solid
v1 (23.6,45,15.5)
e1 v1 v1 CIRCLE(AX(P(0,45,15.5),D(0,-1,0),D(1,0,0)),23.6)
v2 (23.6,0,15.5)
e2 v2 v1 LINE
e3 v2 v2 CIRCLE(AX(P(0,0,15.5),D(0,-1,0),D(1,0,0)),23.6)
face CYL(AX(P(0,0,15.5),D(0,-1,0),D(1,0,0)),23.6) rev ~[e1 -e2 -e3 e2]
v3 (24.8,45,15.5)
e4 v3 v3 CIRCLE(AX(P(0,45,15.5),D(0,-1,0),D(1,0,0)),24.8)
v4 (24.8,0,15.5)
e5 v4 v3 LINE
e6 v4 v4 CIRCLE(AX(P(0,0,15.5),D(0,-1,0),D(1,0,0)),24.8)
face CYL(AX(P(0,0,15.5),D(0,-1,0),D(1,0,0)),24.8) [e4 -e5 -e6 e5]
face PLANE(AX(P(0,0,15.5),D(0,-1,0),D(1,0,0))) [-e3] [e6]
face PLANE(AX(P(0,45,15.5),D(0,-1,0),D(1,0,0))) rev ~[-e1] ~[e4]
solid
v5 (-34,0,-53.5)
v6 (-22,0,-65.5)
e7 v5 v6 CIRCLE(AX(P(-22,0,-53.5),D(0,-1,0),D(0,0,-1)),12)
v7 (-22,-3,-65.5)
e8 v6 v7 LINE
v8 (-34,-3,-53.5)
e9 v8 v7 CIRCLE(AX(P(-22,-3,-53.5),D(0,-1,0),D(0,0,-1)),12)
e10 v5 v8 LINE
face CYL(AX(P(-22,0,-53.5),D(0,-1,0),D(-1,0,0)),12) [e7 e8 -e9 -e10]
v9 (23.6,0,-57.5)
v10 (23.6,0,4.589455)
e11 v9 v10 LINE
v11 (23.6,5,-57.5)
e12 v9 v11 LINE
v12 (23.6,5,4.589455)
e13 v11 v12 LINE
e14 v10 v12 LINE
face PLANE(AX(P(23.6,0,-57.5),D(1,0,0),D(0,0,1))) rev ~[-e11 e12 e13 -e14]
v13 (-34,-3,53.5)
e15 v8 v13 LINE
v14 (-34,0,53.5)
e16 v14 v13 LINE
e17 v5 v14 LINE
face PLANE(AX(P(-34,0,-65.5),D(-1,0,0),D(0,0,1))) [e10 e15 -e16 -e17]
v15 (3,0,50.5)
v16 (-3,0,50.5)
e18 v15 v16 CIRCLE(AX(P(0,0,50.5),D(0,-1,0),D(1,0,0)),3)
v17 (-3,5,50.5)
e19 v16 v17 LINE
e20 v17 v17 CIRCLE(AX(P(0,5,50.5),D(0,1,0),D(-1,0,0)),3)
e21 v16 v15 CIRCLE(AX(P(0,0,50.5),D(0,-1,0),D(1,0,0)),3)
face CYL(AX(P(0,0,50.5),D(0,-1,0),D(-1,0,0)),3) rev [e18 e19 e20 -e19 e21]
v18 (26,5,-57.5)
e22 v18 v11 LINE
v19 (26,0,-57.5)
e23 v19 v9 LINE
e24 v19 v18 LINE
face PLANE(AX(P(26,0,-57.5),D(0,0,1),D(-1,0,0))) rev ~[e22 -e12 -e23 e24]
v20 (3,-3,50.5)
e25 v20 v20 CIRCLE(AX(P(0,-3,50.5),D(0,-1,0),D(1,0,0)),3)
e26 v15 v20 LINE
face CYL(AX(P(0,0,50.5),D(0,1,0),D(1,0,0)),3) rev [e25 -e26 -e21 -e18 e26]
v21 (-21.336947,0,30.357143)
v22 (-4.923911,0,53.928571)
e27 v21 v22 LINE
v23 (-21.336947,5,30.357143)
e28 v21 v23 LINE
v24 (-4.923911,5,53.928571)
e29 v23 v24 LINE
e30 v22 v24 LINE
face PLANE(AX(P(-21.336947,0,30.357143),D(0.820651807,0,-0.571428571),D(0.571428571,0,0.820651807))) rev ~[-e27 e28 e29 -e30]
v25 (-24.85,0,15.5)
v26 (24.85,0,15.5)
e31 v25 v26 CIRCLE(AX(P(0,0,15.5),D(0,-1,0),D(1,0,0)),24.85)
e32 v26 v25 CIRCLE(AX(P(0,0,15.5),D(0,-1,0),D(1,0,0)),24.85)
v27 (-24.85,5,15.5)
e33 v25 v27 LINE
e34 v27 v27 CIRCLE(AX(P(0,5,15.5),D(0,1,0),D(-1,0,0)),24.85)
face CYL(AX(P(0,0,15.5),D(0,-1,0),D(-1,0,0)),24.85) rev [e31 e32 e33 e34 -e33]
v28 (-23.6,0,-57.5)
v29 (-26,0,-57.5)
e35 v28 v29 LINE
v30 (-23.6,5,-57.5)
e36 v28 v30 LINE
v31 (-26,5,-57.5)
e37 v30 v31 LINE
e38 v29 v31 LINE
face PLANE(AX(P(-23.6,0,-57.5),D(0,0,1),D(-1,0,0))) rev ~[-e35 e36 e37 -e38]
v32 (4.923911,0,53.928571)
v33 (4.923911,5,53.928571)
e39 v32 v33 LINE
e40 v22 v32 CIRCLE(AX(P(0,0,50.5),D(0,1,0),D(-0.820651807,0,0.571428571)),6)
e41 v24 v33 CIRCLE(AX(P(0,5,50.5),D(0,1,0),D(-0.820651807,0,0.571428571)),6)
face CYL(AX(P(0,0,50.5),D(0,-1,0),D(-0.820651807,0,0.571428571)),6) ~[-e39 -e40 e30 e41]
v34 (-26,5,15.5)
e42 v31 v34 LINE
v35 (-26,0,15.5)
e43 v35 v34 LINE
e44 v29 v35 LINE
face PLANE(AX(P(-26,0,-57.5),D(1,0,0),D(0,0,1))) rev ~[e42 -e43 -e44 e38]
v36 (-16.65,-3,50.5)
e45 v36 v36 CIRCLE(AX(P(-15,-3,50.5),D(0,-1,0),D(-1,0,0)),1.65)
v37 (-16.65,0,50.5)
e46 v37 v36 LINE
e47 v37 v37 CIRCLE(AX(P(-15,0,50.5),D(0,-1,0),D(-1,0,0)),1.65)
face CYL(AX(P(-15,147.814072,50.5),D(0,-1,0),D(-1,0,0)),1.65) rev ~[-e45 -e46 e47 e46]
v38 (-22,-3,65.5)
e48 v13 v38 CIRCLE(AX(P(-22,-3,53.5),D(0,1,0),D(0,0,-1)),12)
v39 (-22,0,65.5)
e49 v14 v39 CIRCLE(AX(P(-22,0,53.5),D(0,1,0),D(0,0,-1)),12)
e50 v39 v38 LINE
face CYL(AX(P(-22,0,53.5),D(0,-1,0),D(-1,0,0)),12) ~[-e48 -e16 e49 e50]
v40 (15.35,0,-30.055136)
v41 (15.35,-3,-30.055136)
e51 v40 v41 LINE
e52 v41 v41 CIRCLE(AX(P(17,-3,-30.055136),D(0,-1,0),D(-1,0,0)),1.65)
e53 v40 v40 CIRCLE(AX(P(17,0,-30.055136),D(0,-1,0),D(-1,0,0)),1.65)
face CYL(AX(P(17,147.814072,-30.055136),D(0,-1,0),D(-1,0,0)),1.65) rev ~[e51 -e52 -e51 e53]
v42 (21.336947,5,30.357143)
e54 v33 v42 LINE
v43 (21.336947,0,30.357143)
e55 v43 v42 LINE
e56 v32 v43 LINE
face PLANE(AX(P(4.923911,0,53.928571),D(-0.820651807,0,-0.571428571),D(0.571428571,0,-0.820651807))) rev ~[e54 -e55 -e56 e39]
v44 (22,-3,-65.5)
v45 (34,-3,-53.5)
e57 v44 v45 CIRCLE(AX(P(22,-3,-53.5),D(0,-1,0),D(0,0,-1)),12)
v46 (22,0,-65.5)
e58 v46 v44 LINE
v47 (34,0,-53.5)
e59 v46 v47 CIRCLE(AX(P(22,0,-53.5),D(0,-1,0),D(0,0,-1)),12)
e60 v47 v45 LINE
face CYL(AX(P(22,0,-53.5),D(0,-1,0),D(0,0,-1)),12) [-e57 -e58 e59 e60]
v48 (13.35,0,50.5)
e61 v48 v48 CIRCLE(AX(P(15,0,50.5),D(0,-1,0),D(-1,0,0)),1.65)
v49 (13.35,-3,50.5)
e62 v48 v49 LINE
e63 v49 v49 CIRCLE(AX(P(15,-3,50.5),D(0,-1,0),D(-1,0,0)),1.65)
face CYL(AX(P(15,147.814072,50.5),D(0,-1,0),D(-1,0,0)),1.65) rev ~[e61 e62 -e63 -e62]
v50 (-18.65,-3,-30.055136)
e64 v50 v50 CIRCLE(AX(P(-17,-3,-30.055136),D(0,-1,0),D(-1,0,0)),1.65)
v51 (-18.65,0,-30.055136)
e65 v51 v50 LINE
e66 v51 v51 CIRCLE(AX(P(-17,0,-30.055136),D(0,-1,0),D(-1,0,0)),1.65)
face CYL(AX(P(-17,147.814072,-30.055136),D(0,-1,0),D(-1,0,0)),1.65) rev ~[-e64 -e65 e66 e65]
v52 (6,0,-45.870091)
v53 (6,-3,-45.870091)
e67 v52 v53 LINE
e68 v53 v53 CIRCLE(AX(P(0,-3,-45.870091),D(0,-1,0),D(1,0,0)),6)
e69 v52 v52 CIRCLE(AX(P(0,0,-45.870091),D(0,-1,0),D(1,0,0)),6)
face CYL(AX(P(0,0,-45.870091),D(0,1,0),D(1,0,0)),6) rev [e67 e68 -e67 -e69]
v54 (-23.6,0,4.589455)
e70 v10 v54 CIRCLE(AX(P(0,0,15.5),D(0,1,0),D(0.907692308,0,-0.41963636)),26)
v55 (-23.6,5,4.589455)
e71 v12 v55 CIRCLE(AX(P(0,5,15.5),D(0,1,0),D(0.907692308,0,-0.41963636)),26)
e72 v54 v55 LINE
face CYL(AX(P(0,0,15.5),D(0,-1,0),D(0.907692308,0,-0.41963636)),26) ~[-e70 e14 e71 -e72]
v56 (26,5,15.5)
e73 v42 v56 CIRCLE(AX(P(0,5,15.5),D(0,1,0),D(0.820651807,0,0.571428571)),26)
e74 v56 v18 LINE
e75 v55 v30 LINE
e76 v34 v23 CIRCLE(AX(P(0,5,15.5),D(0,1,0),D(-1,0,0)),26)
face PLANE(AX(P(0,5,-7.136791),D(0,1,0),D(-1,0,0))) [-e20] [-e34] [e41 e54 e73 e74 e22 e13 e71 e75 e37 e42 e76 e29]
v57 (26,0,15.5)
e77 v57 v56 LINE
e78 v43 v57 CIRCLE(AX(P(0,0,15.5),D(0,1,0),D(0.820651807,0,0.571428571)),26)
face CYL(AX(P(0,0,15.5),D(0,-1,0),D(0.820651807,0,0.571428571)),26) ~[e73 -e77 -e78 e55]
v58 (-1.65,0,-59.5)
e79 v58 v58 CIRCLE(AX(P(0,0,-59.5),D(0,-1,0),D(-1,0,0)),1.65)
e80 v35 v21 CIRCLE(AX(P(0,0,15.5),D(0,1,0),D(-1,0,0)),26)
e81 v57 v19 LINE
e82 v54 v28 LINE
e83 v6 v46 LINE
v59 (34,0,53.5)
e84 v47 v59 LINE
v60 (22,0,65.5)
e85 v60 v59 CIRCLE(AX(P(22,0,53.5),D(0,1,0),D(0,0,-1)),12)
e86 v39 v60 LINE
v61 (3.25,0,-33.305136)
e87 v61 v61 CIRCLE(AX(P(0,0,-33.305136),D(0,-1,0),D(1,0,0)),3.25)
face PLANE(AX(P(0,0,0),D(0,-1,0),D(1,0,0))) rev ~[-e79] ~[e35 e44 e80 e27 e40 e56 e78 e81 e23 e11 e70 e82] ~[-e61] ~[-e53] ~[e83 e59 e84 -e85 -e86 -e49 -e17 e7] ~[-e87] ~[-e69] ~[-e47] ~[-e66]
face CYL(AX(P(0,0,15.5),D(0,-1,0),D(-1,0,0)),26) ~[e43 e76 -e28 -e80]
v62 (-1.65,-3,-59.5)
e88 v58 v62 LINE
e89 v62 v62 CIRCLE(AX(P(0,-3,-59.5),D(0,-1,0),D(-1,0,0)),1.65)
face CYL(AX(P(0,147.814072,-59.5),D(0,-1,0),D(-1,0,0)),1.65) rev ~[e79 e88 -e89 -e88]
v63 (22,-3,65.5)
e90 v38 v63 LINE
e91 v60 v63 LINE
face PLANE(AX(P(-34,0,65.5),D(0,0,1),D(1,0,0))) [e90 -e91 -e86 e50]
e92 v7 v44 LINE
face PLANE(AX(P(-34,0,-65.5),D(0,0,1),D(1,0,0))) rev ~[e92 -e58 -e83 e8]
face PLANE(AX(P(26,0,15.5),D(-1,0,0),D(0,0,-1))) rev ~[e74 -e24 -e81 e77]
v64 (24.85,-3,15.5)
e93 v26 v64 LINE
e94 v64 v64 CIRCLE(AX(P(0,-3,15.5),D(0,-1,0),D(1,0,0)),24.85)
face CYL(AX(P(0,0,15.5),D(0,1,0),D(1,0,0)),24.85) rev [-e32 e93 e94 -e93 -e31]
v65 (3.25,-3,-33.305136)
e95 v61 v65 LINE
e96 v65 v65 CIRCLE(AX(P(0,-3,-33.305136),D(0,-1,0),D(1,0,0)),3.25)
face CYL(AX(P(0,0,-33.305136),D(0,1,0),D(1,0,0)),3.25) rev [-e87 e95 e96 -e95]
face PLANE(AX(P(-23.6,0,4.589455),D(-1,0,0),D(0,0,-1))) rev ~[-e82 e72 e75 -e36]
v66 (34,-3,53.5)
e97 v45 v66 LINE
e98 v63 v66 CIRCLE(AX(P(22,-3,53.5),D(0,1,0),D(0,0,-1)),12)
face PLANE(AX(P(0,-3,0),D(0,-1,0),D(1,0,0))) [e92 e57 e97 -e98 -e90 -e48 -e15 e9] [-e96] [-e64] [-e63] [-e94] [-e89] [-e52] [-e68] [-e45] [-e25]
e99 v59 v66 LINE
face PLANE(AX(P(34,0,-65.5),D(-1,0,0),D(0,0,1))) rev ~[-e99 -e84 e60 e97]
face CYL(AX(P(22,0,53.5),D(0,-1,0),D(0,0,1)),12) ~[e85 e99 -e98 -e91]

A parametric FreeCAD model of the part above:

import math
import FreeCAD as App
import Part
import Sketcher
Q = App.Units.Quantity


def edges_at(feature, points):
    """Names of the edges that pass closest to the given points."""
    edges = feature.Shape.Edges
    near = lambda p: min(range(len(edges)), key=lambda i: edges[i].distToShape(Part.Vertex(*p))[0])
    return sorted({f"Edge{near(p) + 1}" for p in points})


def add_polygon(sketch, points):
    """Adds a closed chain of lines whose ends are joined by coincident constraints."""
    first, n = sketch.GeometryCount, len(points)
    for a, b in zip(points, points[1:] + points[:1]):
        sketch.addGeometry(Part.LineSegment(App.Vector(*a, 0), App.Vector(*b, 0)), False)
    for i in range(n):
        sketch.addConstraint(Sketcher.Constraint("Coincident", first + i, 2, first + (i + 1) % n, 1))

doc = App.newDocument("Part")
body = doc.addObject("PartDesign::Body", "Body")

sketch1 = body.newObject("Sketcher::SketchObject", "Sketch")
sketch1.AttachmentSupport = (doc.getObject("XZ_Plane"), [""])
sketch1.MapMode = "FlatFace"
add_polygon(sketch1, [(-34, 65.5), (-34, -65.5), (34, -65.5), (34, 65.5)])
sketch1.addGeometry(Part.Circle(App.Vector(0, -45.9, 0), App.Vector(0, 0, 1), 6), False)
sketch1.addGeometry(Part.Circle(App.Vector(0, -33.3, 0), App.Vector(0, 0, 1), 3.2), False)
sketch1.addGeometry(Part.Circle(App.Vector(0, 15.5, 0), App.Vector(0, 0, 1), 24.9), False)
sketch1.addGeometry(Part.Circle(App.Vector(0, 50.5, 0), App.Vector(0, 0, 1), 3), False)
sketch1.addConstraint([
    Sketcher.Constraint("Vertical", 0),
    Sketcher.Constraint("Horizontal", 1),
    Sketcher.Constraint("Vertical", 2),
    Sketcher.Constraint("Horizontal", 3),
    Sketcher.Constraint("Symmetric", 0, 2, 2, 2, -1, 1),
    Sketcher.Constraint("PointOnObject", 4, 3, -2),
    Sketcher.Constraint("PointOnObject", 5, 3, -2),
    Sketcher.Constraint("PointOnObject", 6, 3, -2),
    Sketcher.Constraint("PointOnObject", 7, 3, -2),
    Sketcher.Constraint("Diameter", 4, Q("12 mm")),
    Sketcher.Constraint("Diameter", 7, Q("6 mm")),
    Sketcher.Constraint("Diameter", 5, Q("6.5 mm")),
    Sketcher.Constraint("Diameter", 6, Q("49.7 mm")),
    Sketcher.Constraint("DistanceX", 1, 1, 1, 2, Q("68 mm")),
    Sketcher.Constraint("DistanceY", 0, 2, 0, 1, Q("131 mm")),
    Sketcher.Constraint("DistanceY", 6, 3, 7, 3, Q("35 mm")),
    Sketcher.Constraint("DistanceY", 0, 2, 6, 3, Q("81 mm")),
    Sketcher.Constraint("DistanceY", 4, 3, -1, 1, Q("45.870091 mm")),
    Sketcher.Constraint("DistanceY", 5, 3, -1, 1, Q("33.305136 mm")),
])
pad1 = body.newObject("PartDesign::Pad", "Pad")
pad1.Profile = sketch1
pad1.Length = 3

sketch2 = body.newObject("Sketcher::SketchObject", "Sketch001")
sketch2.AttachmentSupport = (doc.getObject("XZ_Plane"), [""])
sketch2.MapMode = "FlatFace"
sketch2.addGeometry([
    Part.LineSegment(App.Vector(23.6, -57.5, 0), App.Vector(23.6, 4.6, 0)),
    Part.ArcOfCircle(Part.Circle(App.Vector(0, 15.5, 0), App.Vector(0, 0, 1), 26), math.radians(-155), math.radians(-25)),
    Part.LineSegment(App.Vector(-23.6, 4.6, 0), App.Vector(-23.6, -57.5, 0)),
    Part.LineSegment(App.Vector(-23.6, -57.5, 0), App.Vector(-26, -57.5, 0)),
    Part.LineSegment(App.Vector(-26, -57.5, 0), App.Vector(-26, 15.5, 0)),
    Part.ArcOfCircle(Part.Circle(App.Vector(0, 15.5, 0), App.Vector(0, 0, 1), 26), math.radians(145), math.radians(180)),
    Part.LineSegment(App.Vector(-21.3, 30.4, 0), App.Vector(-4.9, 53.9, 0)),
    Part.ArcOfCircle(Part.Circle(App.Vector(0, 50.5, 0), App.Vector(0, 0, 1), 6), math.radians(35), math.radians(145)),
    Part.LineSegment(App.Vector(4.9, 53.9, 0), App.Vector(21.3, 30.4, 0)),
    Part.ArcOfCircle(Part.Circle(App.Vector(0, 15.5, 0), App.Vector(0, 0, 1), 26), math.radians(0), math.radians(35)),
    Part.LineSegment(App.Vector(26, 15.5, 0), App.Vector(26, -57.5, 0)),
    Part.LineSegment(App.Vector(26, -57.5, 0), App.Vector(23.6, -57.5, 0)),
    Part.Circle(App.Vector(0, 15.5, 0), App.Vector(0, 0, 1), 24.9),
    Part.Circle(App.Vector(0, 50.5, 0), App.Vector(0, 0, 1), 3),
], False)
sketch2.addConstraint([
    Sketcher.Constraint("Coincident", 0, 2, 1, 2),
    Sketcher.Constraint("Coincident", 1, 1, 2, 1),
    Sketcher.Constraint("Coincident", 2, 2, 3, 1),
    Sketcher.Constraint("Coincident", 3, 2, 4, 1),
    Sketcher.Constraint("Tangent", 4, 2, 5, 2),
    Sketcher.Constraint("Tangent", 5, 1, 6, 1),
    Sketcher.Constraint("Tangent", 6, 2, 7, 2),
    Sketcher.Constraint("Tangent", 7, 1, 8, 1),
    Sketcher.Constraint("Tangent", 8, 2, 9, 2),
    Sketcher.Constraint("Tangent", 9, 1, 10, 1),
    Sketcher.Constraint("Coincident", 10, 2, 11, 1),
    Sketcher.Constraint("Coincident", 11, 2, 0, 1),
    Sketcher.Constraint("Vertical", 0),
    Sketcher.Constraint("Vertical", 2),
    Sketcher.Constraint("Horizontal", 3),
    Sketcher.Constraint("Vertical", 4),
    Sketcher.Constraint("Vertical", 10),
    Sketcher.Constraint("Horizontal", 11),
    Sketcher.Constraint("Coincident", 5, 3, 1, 3),
    Sketcher.Constraint("Coincident", 9, 3, 1, 3),
    Sketcher.Constraint("Coincident", 12, 3, 1, 3),
    Sketcher.Constraint("Coincident", 13, 3, 7, 3),
    Sketcher.Constraint("Equal", 1, 5),
    Sketcher.Constraint("Equal", 5, 9),
    Sketcher.Constraint("Symmetric", 0, 2, 1, 1, -2),
    Sketcher.Constraint("PointOnObject", 7, 3, -2),
    Sketcher.Constraint("Horizontal", 3, 2, 10, 2),
    Sketcher.Constraint("Diameter", 13, Q("6 mm")),
    Sketcher.Constraint("Radius", 1, Q("26 mm")),
    Sketcher.Constraint("Radius", 7, Q("6 mm")),
    Sketcher.Constraint("Diameter", 12, Q("49.7 mm")),
    Sketcher.Constraint("DistanceY", 4, 1, 4, 2, Q("73 mm")),
    Sketcher.Constraint("DistanceX", 3, 2, 3, 1, Q("2.4 mm")),
    Sketcher.Constraint("DistanceY", 1, 3, 7, 3, Q("35 mm")),
    Sketcher.Constraint("DistanceY", -1, 1, 1, 3, Q("15.5 mm")),
])
pad2 = body.newObject("PartDesign::Pad", "Pad001")
pad2.Profile = sketch2
pad2.Length = 5
pad2.Reversed = True

sketch3 = body.newObject("Sketcher::SketchObject", "Sketch002")
sketch3.AttachmentSupport = (doc.getObject("XZ_Plane"), [""])
sketch3.MapMode = "FlatFace"
sketch3.addGeometry([
    Part.Circle(App.Vector(-15, 50.5, 0), App.Vector(0, 0, 1), 1.6),
    Part.Circle(App.Vector(15, 50.5, 0), App.Vector(0, 0, 1), 1.6),
    Part.Circle(App.Vector(-17, -30.1, 0), App.Vector(0, 0, 1), 1.6),
    Part.Circle(App.Vector(17, -30.1, 0), App.Vector(0, 0, 1), 1.6),
    Part.Circle(App.Vector(0, -59.5, 0), App.Vector(0, 0, 1), 1.6),
], False)
sketch3.addConstraint([
    Sketcher.Constraint("Equal", 0, 1),
    Sketcher.Constraint("Equal", 1, 2),
    Sketcher.Constraint("Equal", 2, 3),
    Sketcher.Constraint("Equal", 3, 4),
    Sketcher.Constraint("Symmetric", 0, 3, 1, 3, -2),
    Sketcher.Constraint("Symmetric", 2, 3, 3, 3, -2),
    Sketcher.Constraint("PointOnObject", 4, 3, -2),
    Sketcher.Constraint("Diameter", 0, Q("3.3 mm")),
    Sketcher.Constraint("DistanceX", 0, 3, -1, 1, Q("15 mm")),
    Sketcher.Constraint("DistanceX", 2, 3, -1, 1, Q("17 mm")),
    Sketcher.Constraint("DistanceY", 4, 3, 0, 3, Q("110 mm")),
    Sketcher.Constraint("DistanceY", -1, 1, 0, 3, Q("50.5 mm")),
    Sketcher.Constraint("DistanceY", 2, 3, -1, 1, Q("30.055136 mm")),
])
doc.recompute()
hole = body.newObject("PartDesign::Hole", "Hole")
hole.Profile = sketch3
hole.ThreadType = "None"
hole.Diameter = 3.3
hole.DepthType = "ThroughAll"
hole.Reversed = True
doc.recompute()

fillet = body.newObject("PartDesign::Fillet", "Fillet")
fillet.Base = (hole, edges_at(hole, [
    (-34, -1.5, 65.5),
    (34, -1.5, 65.5),
    (-34, -1.5, -65.5),
    (34, -1.5, -65.5),
]))
fillet.Radius = 12
body2 = doc.addObject("PartDesign::Body", "Body001")

sketch4 = body2.newObject("Sketcher::SketchObject", "Sketch003")
sketch4.AttachmentSupport = (doc.getObject("XZ_Plane001"), [""])
sketch4.MapMode = "FlatFace"
sketch4.addGeometry([
    Part.Circle(App.Vector(0, 16, 0), App.Vector(0, 0, 1), 25),
    Part.Circle(App.Vector(0, 16, 0), App.Vector(0, 0, 1), 24),
], False)
sketch4.addConstraint([
    Sketcher.Constraint("Coincident", 1, 3, 0, 3),
    Sketcher.Constraint("PointOnObject", 0, 3, -2),
    Sketcher.Constraint("Diameter", 0, Q("49.6 mm")),
    Sketcher.Constraint("Diameter", 1, Q("47.2 mm")),
    Sketcher.Constraint("DistanceY", -1, 1, 0, 3, Q("15.5 mm")),
])
pad3 = body2.newObject("PartDesign::Pad", "Pad002")
pad3.Profile = sketch4
pad3.Length = 45
pad3.Reversed = True

doc.recompute()
